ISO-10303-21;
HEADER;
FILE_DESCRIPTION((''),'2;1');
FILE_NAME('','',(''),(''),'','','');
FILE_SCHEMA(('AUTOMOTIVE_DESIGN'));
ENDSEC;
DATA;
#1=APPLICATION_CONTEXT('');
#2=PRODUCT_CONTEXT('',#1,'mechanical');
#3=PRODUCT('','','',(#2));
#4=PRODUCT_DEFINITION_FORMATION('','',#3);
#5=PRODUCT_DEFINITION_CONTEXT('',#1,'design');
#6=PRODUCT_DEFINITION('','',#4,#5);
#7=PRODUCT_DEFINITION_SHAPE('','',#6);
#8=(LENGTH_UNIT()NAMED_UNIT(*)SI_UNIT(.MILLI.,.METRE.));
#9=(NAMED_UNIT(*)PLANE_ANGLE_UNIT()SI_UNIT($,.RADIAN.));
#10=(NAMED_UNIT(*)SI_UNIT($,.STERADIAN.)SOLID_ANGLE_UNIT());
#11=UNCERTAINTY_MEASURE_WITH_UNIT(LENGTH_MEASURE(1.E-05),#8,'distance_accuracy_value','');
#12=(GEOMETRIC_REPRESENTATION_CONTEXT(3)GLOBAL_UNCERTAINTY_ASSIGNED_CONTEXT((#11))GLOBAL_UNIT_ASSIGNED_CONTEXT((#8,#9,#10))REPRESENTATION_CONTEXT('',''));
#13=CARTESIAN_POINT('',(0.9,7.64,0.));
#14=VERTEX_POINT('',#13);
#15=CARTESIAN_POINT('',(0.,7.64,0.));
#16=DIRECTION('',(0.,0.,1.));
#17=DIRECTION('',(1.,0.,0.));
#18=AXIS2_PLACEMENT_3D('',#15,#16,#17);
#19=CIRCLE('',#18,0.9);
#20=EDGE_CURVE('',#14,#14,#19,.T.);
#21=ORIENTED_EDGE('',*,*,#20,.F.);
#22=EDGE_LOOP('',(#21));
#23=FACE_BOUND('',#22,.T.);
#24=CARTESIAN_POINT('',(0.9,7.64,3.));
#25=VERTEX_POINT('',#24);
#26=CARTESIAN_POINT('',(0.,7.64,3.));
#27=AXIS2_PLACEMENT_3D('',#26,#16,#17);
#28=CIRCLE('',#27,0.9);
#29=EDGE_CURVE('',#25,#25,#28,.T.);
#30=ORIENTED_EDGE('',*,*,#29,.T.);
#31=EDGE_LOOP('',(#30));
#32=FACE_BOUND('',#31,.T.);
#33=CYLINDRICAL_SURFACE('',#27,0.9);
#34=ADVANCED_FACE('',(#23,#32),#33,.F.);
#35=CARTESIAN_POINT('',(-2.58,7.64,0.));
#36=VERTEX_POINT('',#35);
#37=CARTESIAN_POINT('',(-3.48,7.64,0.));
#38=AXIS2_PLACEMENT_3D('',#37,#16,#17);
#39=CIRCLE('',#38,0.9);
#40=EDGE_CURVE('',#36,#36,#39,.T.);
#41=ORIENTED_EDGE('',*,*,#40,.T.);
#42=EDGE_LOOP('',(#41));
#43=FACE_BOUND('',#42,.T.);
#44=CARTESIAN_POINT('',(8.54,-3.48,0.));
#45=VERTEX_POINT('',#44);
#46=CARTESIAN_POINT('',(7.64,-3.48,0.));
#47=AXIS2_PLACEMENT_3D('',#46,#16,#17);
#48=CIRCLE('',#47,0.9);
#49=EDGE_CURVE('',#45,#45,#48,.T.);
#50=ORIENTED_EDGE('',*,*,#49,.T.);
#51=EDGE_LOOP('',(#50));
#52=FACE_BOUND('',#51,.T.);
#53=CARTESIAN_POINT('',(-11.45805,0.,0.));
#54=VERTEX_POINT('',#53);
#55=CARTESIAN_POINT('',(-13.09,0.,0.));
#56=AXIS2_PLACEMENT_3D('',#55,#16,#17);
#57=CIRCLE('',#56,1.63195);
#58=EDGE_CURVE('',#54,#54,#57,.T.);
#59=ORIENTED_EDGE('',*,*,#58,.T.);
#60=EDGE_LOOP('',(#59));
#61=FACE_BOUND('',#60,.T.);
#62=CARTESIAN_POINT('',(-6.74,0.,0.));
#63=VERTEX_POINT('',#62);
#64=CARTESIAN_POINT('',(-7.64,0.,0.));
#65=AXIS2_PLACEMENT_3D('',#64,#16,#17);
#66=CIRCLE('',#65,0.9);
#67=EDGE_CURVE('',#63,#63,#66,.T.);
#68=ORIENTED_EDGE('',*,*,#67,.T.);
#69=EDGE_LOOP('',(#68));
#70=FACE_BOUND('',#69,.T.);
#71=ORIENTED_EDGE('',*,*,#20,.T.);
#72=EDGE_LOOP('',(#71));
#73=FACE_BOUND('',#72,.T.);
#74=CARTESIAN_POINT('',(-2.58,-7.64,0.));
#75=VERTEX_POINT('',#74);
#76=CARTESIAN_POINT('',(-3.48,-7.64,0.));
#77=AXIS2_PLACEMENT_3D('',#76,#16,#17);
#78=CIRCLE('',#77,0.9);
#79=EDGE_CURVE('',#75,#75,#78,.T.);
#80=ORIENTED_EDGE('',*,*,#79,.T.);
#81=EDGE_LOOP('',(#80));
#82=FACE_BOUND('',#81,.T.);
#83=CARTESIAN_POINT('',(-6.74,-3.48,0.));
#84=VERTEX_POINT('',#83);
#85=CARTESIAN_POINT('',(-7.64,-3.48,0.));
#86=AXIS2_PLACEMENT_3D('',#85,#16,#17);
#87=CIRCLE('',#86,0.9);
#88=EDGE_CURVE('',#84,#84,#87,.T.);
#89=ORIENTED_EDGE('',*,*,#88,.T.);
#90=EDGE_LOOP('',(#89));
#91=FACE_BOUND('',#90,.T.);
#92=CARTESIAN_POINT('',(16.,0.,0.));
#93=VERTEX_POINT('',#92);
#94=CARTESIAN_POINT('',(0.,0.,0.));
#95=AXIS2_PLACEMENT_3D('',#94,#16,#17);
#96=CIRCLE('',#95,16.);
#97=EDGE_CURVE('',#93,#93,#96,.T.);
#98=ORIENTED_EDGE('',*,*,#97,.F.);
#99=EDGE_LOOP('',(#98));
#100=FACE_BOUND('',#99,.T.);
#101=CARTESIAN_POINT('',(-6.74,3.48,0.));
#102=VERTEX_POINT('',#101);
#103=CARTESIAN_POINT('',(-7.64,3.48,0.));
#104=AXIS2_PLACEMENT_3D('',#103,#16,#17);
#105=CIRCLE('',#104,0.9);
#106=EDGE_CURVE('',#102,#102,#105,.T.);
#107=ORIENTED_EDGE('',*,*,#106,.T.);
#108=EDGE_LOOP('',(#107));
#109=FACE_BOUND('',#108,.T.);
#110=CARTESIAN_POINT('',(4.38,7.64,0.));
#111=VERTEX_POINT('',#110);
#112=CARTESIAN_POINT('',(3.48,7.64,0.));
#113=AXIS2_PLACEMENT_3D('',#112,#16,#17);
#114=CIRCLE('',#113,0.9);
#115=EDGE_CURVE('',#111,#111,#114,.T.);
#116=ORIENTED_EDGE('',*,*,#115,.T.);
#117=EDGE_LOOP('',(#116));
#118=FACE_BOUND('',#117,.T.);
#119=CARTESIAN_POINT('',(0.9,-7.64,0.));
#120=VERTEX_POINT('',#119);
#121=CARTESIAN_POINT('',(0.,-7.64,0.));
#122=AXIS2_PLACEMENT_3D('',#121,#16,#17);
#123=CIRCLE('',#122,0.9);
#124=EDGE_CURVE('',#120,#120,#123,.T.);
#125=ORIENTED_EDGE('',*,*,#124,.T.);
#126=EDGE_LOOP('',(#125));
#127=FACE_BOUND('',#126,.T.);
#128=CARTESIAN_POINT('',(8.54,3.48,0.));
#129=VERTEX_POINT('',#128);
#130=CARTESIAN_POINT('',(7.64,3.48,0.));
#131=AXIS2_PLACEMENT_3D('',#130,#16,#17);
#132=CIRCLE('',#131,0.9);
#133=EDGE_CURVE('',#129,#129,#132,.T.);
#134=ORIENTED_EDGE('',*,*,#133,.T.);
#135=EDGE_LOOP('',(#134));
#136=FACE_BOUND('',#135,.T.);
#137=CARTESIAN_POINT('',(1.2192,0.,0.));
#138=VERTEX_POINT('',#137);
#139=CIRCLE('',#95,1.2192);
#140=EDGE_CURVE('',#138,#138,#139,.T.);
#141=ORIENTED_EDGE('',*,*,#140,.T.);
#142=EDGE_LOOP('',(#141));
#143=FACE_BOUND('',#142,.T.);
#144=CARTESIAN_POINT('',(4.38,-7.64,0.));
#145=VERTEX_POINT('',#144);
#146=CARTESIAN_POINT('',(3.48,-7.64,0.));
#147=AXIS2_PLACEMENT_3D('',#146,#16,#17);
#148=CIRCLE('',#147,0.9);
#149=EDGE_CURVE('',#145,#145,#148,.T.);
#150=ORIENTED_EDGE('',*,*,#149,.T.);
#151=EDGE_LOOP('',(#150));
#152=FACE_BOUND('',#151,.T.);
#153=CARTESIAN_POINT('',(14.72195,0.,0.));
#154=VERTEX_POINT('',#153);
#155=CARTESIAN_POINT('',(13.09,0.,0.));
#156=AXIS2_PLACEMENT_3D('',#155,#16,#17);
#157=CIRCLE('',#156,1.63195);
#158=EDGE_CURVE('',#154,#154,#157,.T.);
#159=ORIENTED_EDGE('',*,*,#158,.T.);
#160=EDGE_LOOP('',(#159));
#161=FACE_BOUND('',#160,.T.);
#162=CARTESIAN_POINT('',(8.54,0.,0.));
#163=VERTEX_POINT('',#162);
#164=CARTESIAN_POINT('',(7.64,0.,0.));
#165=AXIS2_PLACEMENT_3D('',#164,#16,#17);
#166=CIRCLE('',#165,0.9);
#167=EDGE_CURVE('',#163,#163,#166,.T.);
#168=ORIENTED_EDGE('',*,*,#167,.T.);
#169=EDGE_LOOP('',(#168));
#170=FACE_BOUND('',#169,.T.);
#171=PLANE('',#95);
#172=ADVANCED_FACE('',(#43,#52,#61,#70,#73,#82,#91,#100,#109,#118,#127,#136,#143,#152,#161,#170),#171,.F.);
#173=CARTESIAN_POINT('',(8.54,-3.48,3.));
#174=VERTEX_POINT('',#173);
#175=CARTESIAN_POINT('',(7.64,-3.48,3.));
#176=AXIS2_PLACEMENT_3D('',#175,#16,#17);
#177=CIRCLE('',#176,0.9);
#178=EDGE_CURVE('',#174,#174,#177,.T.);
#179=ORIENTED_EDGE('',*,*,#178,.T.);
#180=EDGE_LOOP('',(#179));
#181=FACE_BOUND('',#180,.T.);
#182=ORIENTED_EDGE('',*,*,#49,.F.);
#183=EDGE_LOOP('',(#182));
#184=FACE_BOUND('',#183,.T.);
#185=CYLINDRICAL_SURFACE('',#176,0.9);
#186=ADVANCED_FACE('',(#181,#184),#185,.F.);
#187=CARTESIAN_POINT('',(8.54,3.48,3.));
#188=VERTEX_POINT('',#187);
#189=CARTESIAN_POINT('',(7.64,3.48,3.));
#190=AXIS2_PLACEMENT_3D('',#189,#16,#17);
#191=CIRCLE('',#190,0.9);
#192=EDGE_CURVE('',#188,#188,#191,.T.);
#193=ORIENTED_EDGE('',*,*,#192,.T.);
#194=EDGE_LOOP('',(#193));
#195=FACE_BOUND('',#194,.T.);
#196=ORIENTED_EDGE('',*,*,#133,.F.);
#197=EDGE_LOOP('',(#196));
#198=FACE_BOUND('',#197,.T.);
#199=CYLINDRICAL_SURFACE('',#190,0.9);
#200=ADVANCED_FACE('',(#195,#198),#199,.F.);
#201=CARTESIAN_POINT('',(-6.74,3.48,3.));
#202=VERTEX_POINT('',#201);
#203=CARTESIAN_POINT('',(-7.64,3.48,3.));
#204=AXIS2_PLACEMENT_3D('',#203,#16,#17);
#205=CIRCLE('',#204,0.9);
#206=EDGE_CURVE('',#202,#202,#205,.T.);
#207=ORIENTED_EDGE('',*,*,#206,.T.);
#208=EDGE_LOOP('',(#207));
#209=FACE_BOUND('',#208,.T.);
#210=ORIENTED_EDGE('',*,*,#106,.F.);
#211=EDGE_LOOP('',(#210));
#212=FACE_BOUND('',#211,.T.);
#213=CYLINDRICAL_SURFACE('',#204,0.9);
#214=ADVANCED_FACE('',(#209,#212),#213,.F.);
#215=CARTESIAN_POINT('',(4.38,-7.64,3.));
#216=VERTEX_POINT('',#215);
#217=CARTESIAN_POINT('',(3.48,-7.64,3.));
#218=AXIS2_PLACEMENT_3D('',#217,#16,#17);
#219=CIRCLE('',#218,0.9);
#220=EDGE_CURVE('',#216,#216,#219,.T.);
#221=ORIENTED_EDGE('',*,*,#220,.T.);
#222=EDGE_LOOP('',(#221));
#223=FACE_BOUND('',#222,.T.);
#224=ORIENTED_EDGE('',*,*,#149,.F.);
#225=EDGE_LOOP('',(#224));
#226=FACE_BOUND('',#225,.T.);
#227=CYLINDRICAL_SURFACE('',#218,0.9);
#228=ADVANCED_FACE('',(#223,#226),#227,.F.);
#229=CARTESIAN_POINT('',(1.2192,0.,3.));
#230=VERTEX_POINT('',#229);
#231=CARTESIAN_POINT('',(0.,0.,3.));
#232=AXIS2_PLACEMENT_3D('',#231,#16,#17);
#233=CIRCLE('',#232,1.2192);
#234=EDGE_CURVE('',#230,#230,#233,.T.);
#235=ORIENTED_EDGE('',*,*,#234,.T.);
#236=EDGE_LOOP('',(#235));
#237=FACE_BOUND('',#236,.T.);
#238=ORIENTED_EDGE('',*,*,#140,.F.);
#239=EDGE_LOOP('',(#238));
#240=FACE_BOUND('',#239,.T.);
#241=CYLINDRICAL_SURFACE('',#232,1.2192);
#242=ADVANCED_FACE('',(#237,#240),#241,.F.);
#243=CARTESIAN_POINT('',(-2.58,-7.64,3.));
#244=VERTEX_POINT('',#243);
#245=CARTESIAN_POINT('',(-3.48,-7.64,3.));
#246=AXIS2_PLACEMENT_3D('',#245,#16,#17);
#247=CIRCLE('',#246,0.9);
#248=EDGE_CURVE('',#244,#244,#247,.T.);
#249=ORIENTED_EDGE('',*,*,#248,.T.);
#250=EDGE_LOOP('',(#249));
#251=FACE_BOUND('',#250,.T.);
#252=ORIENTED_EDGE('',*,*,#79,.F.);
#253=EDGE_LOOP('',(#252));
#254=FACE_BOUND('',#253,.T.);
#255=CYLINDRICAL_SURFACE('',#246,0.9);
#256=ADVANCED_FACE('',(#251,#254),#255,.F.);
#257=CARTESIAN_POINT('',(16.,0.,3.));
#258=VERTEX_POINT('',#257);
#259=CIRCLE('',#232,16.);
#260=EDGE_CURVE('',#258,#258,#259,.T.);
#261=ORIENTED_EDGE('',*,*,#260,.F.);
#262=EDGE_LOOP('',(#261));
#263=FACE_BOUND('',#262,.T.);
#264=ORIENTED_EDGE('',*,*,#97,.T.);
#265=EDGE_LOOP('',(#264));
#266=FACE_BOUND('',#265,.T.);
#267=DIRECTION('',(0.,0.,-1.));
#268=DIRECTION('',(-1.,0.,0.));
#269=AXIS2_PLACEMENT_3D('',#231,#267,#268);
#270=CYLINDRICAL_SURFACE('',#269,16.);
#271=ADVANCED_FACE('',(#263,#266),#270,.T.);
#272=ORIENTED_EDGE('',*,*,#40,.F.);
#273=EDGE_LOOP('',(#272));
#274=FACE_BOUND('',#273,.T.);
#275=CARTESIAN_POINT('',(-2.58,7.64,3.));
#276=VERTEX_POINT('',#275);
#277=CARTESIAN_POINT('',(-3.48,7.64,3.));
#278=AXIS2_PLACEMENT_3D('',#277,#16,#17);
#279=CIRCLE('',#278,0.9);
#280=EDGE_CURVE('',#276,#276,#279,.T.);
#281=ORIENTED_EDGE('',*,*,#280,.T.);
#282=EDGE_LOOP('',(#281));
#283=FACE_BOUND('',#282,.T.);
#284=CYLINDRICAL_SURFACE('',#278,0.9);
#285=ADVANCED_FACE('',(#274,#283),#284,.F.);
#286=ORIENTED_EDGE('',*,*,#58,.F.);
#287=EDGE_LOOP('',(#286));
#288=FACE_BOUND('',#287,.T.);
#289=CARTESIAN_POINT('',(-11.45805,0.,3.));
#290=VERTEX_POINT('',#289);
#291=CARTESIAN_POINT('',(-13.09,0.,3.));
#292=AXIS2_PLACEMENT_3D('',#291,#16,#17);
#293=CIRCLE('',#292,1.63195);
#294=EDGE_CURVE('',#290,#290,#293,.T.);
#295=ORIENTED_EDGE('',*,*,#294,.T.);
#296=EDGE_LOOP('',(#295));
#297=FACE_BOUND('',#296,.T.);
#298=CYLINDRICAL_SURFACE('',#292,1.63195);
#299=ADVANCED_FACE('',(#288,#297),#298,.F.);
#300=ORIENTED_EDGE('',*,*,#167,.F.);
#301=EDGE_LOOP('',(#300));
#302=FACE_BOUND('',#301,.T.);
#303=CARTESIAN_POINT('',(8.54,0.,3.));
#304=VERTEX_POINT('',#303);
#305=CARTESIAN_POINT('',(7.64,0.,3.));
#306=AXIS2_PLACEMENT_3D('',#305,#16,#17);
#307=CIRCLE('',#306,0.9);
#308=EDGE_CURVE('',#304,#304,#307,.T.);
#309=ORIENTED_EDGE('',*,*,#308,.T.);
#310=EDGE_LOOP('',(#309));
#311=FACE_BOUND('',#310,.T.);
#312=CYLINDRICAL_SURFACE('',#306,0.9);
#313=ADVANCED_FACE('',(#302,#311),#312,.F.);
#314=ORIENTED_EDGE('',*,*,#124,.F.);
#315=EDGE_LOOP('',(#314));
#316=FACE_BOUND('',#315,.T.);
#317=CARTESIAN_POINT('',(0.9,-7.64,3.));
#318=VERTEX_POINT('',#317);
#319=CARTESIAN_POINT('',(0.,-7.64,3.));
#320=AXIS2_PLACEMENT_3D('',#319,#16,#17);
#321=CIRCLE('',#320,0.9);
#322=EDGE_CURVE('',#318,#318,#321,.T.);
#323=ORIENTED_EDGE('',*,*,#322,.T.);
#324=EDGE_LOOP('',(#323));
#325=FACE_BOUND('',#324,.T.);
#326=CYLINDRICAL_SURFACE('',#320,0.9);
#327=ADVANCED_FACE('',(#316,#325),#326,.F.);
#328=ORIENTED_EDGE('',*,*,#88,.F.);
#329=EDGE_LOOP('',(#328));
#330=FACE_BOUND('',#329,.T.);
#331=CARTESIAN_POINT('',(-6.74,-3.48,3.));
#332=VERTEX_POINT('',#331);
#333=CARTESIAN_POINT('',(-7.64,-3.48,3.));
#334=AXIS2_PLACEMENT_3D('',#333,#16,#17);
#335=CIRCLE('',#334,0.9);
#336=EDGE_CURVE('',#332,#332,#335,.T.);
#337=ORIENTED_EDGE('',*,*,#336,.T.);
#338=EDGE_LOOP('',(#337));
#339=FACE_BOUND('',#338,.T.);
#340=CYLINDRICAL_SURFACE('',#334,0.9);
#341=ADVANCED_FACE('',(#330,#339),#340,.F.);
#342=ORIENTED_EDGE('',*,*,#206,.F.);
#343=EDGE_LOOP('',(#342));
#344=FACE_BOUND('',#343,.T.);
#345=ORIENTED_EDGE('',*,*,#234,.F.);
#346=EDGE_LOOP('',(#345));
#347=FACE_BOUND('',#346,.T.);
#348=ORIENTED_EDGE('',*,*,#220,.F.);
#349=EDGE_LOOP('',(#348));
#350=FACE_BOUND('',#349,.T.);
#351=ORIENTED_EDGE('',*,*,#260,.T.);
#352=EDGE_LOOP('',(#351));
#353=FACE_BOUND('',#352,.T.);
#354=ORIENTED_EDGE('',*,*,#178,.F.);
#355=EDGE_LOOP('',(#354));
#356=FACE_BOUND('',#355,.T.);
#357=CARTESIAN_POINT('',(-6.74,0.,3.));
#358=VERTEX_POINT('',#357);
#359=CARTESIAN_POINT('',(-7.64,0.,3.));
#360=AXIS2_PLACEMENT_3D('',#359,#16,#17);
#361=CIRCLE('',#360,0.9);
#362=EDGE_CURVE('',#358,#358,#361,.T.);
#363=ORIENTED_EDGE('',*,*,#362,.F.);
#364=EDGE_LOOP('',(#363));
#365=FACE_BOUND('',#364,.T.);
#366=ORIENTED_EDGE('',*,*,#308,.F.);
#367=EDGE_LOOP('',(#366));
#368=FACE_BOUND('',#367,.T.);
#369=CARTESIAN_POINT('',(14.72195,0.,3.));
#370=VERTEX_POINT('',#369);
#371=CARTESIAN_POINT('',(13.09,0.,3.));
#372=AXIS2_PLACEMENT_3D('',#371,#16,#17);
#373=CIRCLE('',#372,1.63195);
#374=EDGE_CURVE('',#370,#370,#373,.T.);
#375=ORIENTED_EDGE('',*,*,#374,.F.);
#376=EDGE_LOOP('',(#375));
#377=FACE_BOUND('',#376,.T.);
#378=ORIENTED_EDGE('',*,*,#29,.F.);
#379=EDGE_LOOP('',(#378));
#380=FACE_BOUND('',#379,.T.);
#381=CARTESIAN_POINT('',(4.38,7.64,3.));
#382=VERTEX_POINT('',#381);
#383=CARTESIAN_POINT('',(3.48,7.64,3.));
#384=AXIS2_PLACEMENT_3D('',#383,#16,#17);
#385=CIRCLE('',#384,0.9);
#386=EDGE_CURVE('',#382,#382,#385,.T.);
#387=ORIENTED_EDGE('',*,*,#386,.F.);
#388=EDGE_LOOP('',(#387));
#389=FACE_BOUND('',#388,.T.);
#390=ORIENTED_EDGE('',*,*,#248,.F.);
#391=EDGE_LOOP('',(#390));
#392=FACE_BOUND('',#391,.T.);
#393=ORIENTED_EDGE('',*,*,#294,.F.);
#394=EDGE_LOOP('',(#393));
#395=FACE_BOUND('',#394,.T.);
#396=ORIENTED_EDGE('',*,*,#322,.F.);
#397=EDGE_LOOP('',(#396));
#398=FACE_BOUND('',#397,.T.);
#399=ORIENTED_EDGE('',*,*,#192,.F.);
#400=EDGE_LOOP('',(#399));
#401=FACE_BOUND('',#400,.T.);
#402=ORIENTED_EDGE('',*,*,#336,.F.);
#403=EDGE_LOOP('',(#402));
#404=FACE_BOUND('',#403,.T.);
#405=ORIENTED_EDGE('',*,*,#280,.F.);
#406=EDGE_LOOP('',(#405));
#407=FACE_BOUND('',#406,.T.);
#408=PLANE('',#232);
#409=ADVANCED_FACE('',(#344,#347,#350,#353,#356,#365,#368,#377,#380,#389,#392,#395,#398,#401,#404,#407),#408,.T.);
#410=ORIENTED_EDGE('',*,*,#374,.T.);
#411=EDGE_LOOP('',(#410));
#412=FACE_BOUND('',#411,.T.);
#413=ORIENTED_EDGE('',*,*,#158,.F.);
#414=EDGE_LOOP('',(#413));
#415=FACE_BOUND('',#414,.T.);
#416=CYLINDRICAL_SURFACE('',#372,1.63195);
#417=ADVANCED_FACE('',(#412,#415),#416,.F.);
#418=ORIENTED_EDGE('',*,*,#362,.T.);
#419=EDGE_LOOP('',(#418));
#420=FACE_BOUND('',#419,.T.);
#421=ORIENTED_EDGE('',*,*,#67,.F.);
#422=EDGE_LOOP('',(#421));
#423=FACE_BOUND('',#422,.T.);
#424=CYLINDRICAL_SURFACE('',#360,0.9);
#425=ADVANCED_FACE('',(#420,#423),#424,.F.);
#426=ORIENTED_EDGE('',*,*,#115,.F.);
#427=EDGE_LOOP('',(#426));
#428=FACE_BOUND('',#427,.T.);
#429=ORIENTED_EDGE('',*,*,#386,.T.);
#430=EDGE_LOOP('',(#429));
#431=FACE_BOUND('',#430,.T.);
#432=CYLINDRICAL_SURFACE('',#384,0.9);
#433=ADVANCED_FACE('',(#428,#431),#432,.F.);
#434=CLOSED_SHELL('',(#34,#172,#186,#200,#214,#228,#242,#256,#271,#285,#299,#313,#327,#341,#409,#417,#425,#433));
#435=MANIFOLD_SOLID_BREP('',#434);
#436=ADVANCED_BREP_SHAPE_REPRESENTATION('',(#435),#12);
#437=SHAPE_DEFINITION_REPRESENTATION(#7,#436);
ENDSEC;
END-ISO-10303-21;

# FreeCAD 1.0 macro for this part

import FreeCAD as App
import Part
import Sketcher
from FreeCAD import Vector
Q = App.Units.Quantity

doc = App.newDocument("Part")
params = doc.addObject("Spreadsheet::Sheet", "Params")
for row, (alias, value) in enumerate([
    ("sketch1_diameter", "32 mm"),
    ("pad1_length", "3 mm"),
    ("sketch2_diameter", "1.8 mm"),
    ("hole_diameter", "1.8 mm"),
    ("hole2_diameter", "3.2639 mm"),
    ("hole3_diameter", "2.4384 mm"),
], start=1):
    params.set(f"A{row}", alias)
    params.set(f"B{row}", "=" + value)
    params.setAlias(f"B{row}", alias)

body = doc.addObject("PartDesign::Body", "Body")

# Sketch on XY plane
sketch1 = body.newObject("Sketcher::SketchObject", "Sketch")
sketch1.AttachmentSupport = (doc.getObject("XY_Plane"), [""])
sketch1.MapMode = "FlatFace"
sketch1.addGeometry(Part.Circle(Vector(0, 0, 0), Vector(0, 0, 1), 16), False)
sketch1.addConstraint([
    Sketcher.Constraint("Coincident", 0, 3, -1, 1),
    Sketcher.Constraint("Diameter", 0, Q("32 mm")),
])
sketch1.setExpression("Constraints[1]", "Params.sketch1_diameter")
pad1 = body.newObject("PartDesign::Pad", "Pad")
pad1.Profile = sketch1
pad1.setExpression("Length", "Params.pad1_length")

# Sketch on XY plane
sketch2 = body.newObject("Sketcher::SketchObject", "Sketch001")
sketch2.AttachmentSupport = (doc.getObject("XY_Plane"), [""])
sketch2.MapMode = "FlatFace"
sketch2.AttachmentOffset = App.Placement(Vector(0, 0, 3), App.Rotation())
sketch2.addGeometry([
    Part.Circle(Vector(-3.5, 7.6, 0), Vector(0, 0, 1), 0.9),  # 0
    Part.Circle(Vector(0, 7.6, 0), Vector(0, 0, 1), 0.9),  # 1
    Part.Circle(Vector(3.5, 7.6, 0), Vector(0, 0, 1), 0.9),  # 2
    Part.Circle(Vector(7.6, 3.5, 0), Vector(0, 0, 1), 0.9),  # 3
    Part.Circle(Vector(7.6, -3.5, 0), Vector(0, 0, 1), 0.9),  # 4
    Part.Circle(Vector(7.6, 0, 0), Vector(0, 0, 1), 0.9),  # 5
    Part.Circle(Vector(3.5, -7.6, 0), Vector(0, 0, 1), 0.9),  # 6
    Part.Circle(Vector(0, -7.6, 0), Vector(0, 0, 1), 0.9),  # 7
    Part.Circle(Vector(-3.5, -7.6, 0), Vector(0, 0, 1), 0.9),  # 8
    Part.Circle(Vector(-7.6, 0, 0), Vector(0, 0, 1), 0.9),  # 9
    Part.Circle(Vector(-7.6, -3.5, 0), Vector(0, 0, 1), 0.9),  # 10
    Part.Circle(Vector(-7.6, 3.5, 0), Vector(0, 0, 1), 0.9),  # 11
], False)
sketch2.addConstraint([
    Sketcher.Constraint("Equal", 0, 1),
    Sketcher.Constraint("Equal", 1, 2),
    Sketcher.Constraint("Equal", 2, 3),
    Sketcher.Constraint("Equal", 3, 4),
    Sketcher.Constraint("Equal", 4, 5),
    Sketcher.Constraint("Equal", 5, 6),
    Sketcher.Constraint("Equal", 6, 7),
    Sketcher.Constraint("Equal", 7, 8),
    Sketcher.Constraint("Equal", 8, 9),
    Sketcher.Constraint("Equal", 9, 10),
    Sketcher.Constraint("Equal", 10, 11),
    Sketcher.Constraint("Symmetric", 0, 3, 6, 3, -1, 1),
    Sketcher.Constraint("Symmetric", 1, 3, 7, 3, -1, 1),
    Sketcher.Constraint("Symmetric", 2, 3, 8, 3, -1, 1),
    Sketcher.Constraint("Symmetric", 5, 3, 9, 3, -1, 1),
    Sketcher.Constraint("Symmetric", 3, 3, 10, 3, -1, 1),
    Sketcher.Constraint("Symmetric", 4, 3, 11, 3, -1, 1),
    Sketcher.Constraint("Symmetric", 0, 3, 2, 3, -2),
    Sketcher.Constraint("Symmetric", 4, 3, 10, 3, -2),
    Sketcher.Constraint("PointOnObject", 1, 3, -2),
    Sketcher.Constraint("PointOnObject", 5, 3, -1),
    Sketcher.Constraint("Horizontal", 0, 3, 1, 3),
    Sketcher.Constraint("Vertical", 4, 3, 5, 3),
    Sketcher.Constraint("Diameter", 0, Q("1.8 mm")),
    Sketcher.Constraint("DistanceX", 0, 3, -1, 1, Q("3.48 mm")),
    Sketcher.Constraint("DistanceY", -1, 1, 0, 3, Q("7.64 mm")),
    Sketcher.Constraint("DistanceX", -1, 1, 3, 3, Q("7.64 mm")),
    Sketcher.Constraint("DistanceY", -1, 1, 3, 3, Q("3.48 mm")),
])
sketch2.setExpression("Constraints[23]", "Params.sketch2_diameter")
doc.recompute()
hole = body.newObject("PartDesign::Hole", "Hole")
hole.Profile = sketch2
hole.ThreadType = "None"
hole.setExpression("Diameter", "Params.hole_diameter")
hole.DepthType = "ThroughAll"

# Sketch on XY plane
sketch3 = body.newObject("Sketcher::SketchObject", "Sketch002")
sketch3.AttachmentSupport = (doc.getObject("XY_Plane"), [""])
sketch3.MapMode = "FlatFace"
sketch3.AttachmentOffset = App.Placement(Vector(0, 0, 3), App.Rotation())
sketch3.addGeometry([
    Part.Circle(Vector(-13.1, 0, 0), Vector(0, 0, 1), 1.6),
    Part.Circle(Vector(13.1, 0, 0), Vector(0, 0, 1), 1.6),
], False)
sketch3.addConstraint([
    Sketcher.Constraint("Equal", 0, 1),
    Sketcher.Constraint("Symmetric", 0, 3, 1, 3, -1, 1),
    Sketcher.Constraint("PointOnObject", 0, 3, -1),
    Sketcher.Constraint("Diameter", 0, Q("3.2639 mm")),
    Sketcher.Constraint("DistanceX", 0, 3, -1, 1, Q("13.09 mm")),
])
doc.recompute()
hole2 = body.newObject("PartDesign::Hole", "Hole001")
hole2.Profile = sketch3
hole2.ThreadType = "None"
hole2.setExpression("Diameter", "Params.hole2_diameter")
hole2.DepthType = "ThroughAll"

# Sketch on XY plane
sketch4 = body.newObject("Sketcher::SketchObject", "Sketch003")
sketch4.AttachmentSupport = (doc.getObject("XY_Plane"), [""])
sketch4.MapMode = "FlatFace"
sketch4.AttachmentOffset = App.Placement(Vector(0, 0, 3), App.Rotation())
sketch4.addGeometry(Part.Circle(Vector(0, 0, 0), Vector(0, 0, 1), 1.2), False)
sketch4.addConstraint([
    Sketcher.Constraint("Coincident", 0, 3, -1, 1),
    Sketcher.Constraint("Diameter", 0, Q("2.4384 mm")),
])
doc.recompute()
hole3 = body.newObject("PartDesign::Hole", "Hole002")
hole3.Profile = sketch4
hole3.ThreadType = "None"
hole3.setExpression("Diameter", "Params.hole3_diameter")
hole3.DepthType = "ThroughAll"

doc.recompute()
